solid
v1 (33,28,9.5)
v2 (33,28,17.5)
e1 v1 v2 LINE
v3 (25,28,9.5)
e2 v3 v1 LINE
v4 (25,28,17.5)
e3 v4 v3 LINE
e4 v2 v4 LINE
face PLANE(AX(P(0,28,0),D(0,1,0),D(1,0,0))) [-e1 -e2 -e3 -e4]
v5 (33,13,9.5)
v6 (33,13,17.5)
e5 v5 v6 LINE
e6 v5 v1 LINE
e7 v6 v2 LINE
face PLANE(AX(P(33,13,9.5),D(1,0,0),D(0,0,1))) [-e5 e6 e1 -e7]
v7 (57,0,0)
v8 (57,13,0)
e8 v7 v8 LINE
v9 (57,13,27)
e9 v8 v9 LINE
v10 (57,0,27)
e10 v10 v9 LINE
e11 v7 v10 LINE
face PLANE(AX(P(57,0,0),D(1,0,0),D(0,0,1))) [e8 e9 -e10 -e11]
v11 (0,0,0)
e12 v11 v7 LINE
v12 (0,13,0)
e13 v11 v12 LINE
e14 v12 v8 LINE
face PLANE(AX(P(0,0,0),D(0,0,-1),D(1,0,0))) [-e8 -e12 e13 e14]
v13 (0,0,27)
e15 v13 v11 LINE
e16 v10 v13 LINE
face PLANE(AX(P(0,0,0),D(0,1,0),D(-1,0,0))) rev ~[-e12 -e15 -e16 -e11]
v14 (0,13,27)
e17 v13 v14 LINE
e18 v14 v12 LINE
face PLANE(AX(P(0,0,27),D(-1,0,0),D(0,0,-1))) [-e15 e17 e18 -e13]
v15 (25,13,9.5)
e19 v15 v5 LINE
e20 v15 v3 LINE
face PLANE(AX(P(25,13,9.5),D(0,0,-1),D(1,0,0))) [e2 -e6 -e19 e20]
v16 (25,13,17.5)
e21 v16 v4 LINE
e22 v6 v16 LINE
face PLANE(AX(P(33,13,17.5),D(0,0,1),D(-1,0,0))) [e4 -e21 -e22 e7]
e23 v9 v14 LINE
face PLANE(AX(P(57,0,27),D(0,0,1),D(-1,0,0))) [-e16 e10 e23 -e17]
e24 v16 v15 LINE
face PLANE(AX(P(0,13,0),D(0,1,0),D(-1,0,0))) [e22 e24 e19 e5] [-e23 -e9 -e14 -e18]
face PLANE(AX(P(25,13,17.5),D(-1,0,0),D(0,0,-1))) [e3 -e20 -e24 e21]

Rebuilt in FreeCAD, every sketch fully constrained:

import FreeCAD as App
import Part
import Sketcher
from FreeCAD import Vector
Q = App.Units.Quantity

doc = App.newDocument("Part")
body = doc.addObject("PartDesign::Body", "Body")

# Sketch on XZ plane
sketch1 = body.newObject("Sketcher::SketchObject", "Sketch")
sketch1.AttachmentSupport = (doc.getObject("XZ_Plane"), [""])
sketch1.MapMode = "FlatFace"
sketch1.addGeometry([
    Part.LineSegment(Vector(57, 0, 0), Vector(0, 0, 0)),
    Part.LineSegment(Vector(0, 0, 0), Vector(0, 27, 0)),
    Part.LineSegment(Vector(0, 27, 0), Vector(57, 27, 0)),
    Part.LineSegment(Vector(57, 27, 0), Vector(57, 0, 0)),
], False)
sketch1.addConstraint([
    Sketcher.Constraint("Coincident", 0, 2, 1, 1),
    Sketcher.Constraint("Coincident", 1, 2, 2, 1),
    Sketcher.Constraint("Coincident", 2, 2, 3, 1),
    Sketcher.Constraint("Coincident", 3, 2, 0, 1),
    Sketcher.Constraint("Horizontal", 0),
    Sketcher.Constraint("Vertical", 1),
    Sketcher.Constraint("Horizontal", 2),
    Sketcher.Constraint("Vertical", 3),
    Sketcher.Constraint("Coincident", 0, 2, -1, 1),
    Sketcher.Constraint("DistanceX", 0, 2, 0, 1, Q("57 mm")),
    Sketcher.Constraint("DistanceY", 1, 1, 1, 2, Q("27 mm")),
])
pad1 = body.newObject("PartDesign::Pad", "Pad")
pad1.Profile = sketch1
pad1.Length = 13
pad1.Reversed = True

# Sketch on XZ plane
sketch2 = body.newObject("Sketcher::SketchObject", "Sketch001")
sketch2.AttachmentSupport = (doc.getObject("XZ_Plane"), [""])
sketch2.MapMode = "FlatFace"
sketch2.AttachmentOffset = App.Placement(Vector(0, 0, -13), App.Rotation())
sketch2.addGeometry([
    Part.LineSegment(Vector(33, 10, 0), Vector(25, 10, 0)),
    Part.LineSegment(Vector(25, 10, 0), Vector(25, 18, 0)),
    Part.LineSegment(Vector(25, 18, 0), Vector(33, 18, 0)),
    Part.LineSegment(Vector(33, 18, 0), Vector(33, 10, 0)),
], False)
sketch2.addConstraint([
    Sketcher.Constraint("Coincident", 0, 2, 1, 1),
    Sketcher.Constraint("Coincident", 1, 2, 2, 1),
    Sketcher.Constraint("Coincident", 2, 2, 3, 1),
    Sketcher.Constraint("Coincident", 3, 2, 0, 1),
    Sketcher.Constraint("Horizontal", 0),
    Sketcher.Constraint("Vertical", 1),
    Sketcher.Constraint("Horizontal", 2),
    Sketcher.Constraint("Vertical", 3),
    Sketcher.Constraint("Equal", 2, 1),
    Sketcher.Constraint("DistanceX", 0, 2, 0, 1, Q("8 mm")),
    Sketcher.Constraint("DistanceX", -1, 1, 0, 2, Q("25 mm")),
    Sketcher.Constraint("DistanceY", -1, 1, 0, 2, Q("9.5 mm")),
])
pad2 = body.newObject("PartDesign::Pad", "Pad001")
pad2.Profile = sketch2
pad2.Length = 15
pad2.Reversed = True

doc.recompute()
